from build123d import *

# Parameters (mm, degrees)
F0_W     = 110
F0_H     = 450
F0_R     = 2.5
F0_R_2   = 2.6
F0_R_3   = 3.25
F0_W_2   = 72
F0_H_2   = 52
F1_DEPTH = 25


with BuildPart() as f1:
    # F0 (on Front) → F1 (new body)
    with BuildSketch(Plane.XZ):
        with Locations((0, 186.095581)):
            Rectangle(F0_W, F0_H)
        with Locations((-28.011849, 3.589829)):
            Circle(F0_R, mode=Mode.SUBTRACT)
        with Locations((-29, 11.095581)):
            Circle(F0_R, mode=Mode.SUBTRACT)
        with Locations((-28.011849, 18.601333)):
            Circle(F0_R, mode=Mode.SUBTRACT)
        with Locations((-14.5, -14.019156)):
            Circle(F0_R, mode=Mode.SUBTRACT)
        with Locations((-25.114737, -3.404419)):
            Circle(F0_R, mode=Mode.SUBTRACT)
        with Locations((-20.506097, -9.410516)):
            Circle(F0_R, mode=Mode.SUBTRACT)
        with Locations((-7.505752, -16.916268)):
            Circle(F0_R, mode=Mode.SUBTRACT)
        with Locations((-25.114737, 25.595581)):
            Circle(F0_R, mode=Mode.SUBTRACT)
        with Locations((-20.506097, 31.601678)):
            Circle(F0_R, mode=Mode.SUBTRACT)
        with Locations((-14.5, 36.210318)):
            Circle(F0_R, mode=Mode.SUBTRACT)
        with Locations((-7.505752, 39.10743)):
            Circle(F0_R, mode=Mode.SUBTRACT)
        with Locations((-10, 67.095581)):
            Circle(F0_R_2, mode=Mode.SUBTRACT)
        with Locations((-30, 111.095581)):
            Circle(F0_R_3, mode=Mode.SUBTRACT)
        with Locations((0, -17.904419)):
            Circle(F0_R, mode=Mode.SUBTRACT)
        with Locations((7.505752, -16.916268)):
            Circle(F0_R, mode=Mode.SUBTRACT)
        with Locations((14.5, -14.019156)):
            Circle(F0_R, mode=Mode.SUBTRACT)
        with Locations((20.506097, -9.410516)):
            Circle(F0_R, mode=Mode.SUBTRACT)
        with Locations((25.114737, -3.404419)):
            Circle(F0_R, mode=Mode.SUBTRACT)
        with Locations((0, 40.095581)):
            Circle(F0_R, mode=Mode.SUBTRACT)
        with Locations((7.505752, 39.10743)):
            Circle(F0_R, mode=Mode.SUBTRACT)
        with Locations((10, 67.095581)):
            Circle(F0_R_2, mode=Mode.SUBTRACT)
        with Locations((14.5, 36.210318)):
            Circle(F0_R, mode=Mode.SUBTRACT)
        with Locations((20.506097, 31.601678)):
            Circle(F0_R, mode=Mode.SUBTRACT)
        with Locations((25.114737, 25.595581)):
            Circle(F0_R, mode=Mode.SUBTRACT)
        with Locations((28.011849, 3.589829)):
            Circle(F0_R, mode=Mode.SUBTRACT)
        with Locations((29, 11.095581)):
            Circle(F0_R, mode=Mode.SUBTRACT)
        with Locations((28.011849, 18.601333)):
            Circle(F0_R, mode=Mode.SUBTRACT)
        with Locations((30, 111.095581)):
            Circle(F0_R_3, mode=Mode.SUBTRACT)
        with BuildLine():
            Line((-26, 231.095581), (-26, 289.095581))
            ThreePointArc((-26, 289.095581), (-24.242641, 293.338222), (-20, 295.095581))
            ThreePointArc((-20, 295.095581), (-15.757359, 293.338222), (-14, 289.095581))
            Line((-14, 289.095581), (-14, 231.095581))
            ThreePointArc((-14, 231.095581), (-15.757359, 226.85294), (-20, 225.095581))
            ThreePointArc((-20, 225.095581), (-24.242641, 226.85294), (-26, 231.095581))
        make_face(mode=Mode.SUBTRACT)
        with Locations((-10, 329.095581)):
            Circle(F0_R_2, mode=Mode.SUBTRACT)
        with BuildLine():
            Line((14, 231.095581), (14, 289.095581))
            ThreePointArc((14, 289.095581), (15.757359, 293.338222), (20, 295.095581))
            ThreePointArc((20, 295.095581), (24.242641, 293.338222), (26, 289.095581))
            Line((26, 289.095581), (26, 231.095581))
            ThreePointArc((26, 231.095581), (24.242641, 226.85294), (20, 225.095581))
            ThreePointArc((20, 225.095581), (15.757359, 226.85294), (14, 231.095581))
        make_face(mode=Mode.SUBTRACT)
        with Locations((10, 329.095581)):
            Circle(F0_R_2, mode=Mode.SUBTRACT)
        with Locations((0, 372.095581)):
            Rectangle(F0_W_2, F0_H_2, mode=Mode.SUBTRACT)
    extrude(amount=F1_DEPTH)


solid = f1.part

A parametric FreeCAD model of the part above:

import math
import FreeCAD as App
import Part
import Sketcher


def add_polygon(sketch, points):
    """Adds a closed chain of lines whose ends are joined by coincident constraints."""
    first, n = sketch.GeometryCount, len(points)
    for a, b in zip(points, points[1:] + points[:1]):
        sketch.addGeometry(Part.LineSegment(App.Vector(*a, 0), App.Vector(*b, 0)), False)
    for i in range(n):
        sketch.addConstraint(Sketcher.Constraint("Coincident", first + i, 2, first + (i + 1) % n, 1))

doc = App.newDocument("Part")
body = doc.addObject("PartDesign::Body", "Body")

sketch1 = body.newObject("Sketcher::SketchObject", "Sketch")
sketch1.AttachmentSupport = (doc.getObject("XZ_Plane"), [""])
sketch1.MapMode = "FlatFace"
add_polygon(sketch1, [(-55, 411.1), (-55, -38.9), (55, -38.9), (55, 411.1)])
sketch1.addGeometry(Part.Circle(App.Vector(-28, 3.6, 0), App.Vector(0, 0, 1), 2.5), False)
sketch1.addGeometry(Part.Circle(App.Vector(-29, 11.1, 0), App.Vector(0, 0, 1), 2.5), False)
sketch1.addGeometry(Part.Circle(App.Vector(-28, 18.6, 0), App.Vector(0, 0, 1), 2.5), False)
sketch1.addGeometry(Part.Circle(App.Vector(-25.1, -3.4, 0), App.Vector(0, 0, 1), 2.5), False)
sketch1.addGeometry(Part.Circle(App.Vector(-20.5, -9.4, 0), App.Vector(0, 0, 1), 2.5), False)
sketch1.addGeometry(Part.Circle(App.Vector(-25.1, 25.6, 0), App.Vector(0, 0, 1), 2.5), False)
sketch1.addGeometry(Part.Circle(App.Vector(-20.5, 31.6, 0), App.Vector(0, 0, 1), 2.5), False)
sketch1.addGeometry(Part.Circle(App.Vector(-14.5, -14, 0), App.Vector(0, 0, 1), 2.5), False)
sketch1.addGeometry(Part.Circle(App.Vector(-7.5, -16.9, 0), App.Vector(0, 0, 1), 2.5), False)
sketch1.addGeometry(Part.Circle(App.Vector(-14.5, 36.2, 0), App.Vector(0, 0, 1), 2.5), False)
sketch1.addGeometry(Part.Circle(App.Vector(-10, 67.1, 0), App.Vector(0, 0, 1), 2.6), False)
sketch1.addGeometry(Part.Circle(App.Vector(-7.5, 39.1, 0), App.Vector(0, 0, 1), 2.5), False)
sketch1.addGeometry(Part.Circle(App.Vector(-30, 111.1, 0), App.Vector(0, 0, 1), 3.2), False)
sketch1.addGeometry(Part.Circle(App.Vector(0, -17.9, 0), App.Vector(0, 0, 1), 2.5), False)
sketch1.addGeometry(Part.Circle(App.Vector(7.5, -16.9, 0), App.Vector(0, 0, 1), 2.5), False)
sketch1.addGeometry(Part.Circle(App.Vector(14.5, -14, 0), App.Vector(0, 0, 1), 2.5), False)
sketch1.addGeometry(Part.Circle(App.Vector(0, 40.1, 0), App.Vector(0, 0, 1), 2.5), False)
sketch1.addGeometry(Part.Circle(App.Vector(7.5, 39.1, 0), App.Vector(0, 0, 1), 2.5), False)
sketch1.addGeometry(Part.Circle(App.Vector(14.5, 36.2, 0), App.Vector(0, 0, 1), 2.5), False)
sketch1.addGeometry(Part.Circle(App.Vector(10, 67.1, 0), App.Vector(0, 0, 1), 2.6), False)
sketch1.addGeometry(Part.Circle(App.Vector(20.5, -9.4, 0), App.Vector(0, 0, 1), 2.5), False)
sketch1.addGeometry(Part.Circle(App.Vector(25.1, -3.4, 0), App.Vector(0, 0, 1), 2.5), False)
sketch1.addGeometry(Part.Circle(App.Vector(20.5, 31.6, 0), App.Vector(0, 0, 1), 2.5), False)
sketch1.addGeometry(Part.Circle(App.Vector(25.1, 25.6, 0), App.Vector(0, 0, 1), 2.5), False)
sketch1.addGeometry(Part.Circle(App.Vector(28, 3.6, 0), App.Vector(0, 0, 1), 2.5), False)
sketch1.addGeometry(Part.Circle(App.Vector(29, 11.1, 0), App.Vector(0, 0, 1), 2.5), False)
sketch1.addGeometry(Part.Circle(App.Vector(28, 18.6, 0), App.Vector(0, 0, 1), 2.5), False)
sketch1.addGeometry(Part.Circle(App.Vector(30, 111.1, 0), App.Vector(0, 0, 1), 3.2), False)
sketch1.addGeometry(Part.ArcOfCircle(Part.Circle(App.Vector(-20, 231.1, 0), App.Vector(0, 0, 1), 6), math.radians(180), math.radians(270)), False)
sketch1.addGeometry(Part.LineSegment(App.Vector(-26, 231.1, 0), App.Vector(-26, 289.1, 0)), False)
sketch1.addGeometry(Part.ArcOfCircle(Part.Circle(App.Vector(-20, 289.1, 0), App.Vector(0, 0, 1), 6), math.radians(90), math.radians(180)), False)
sketch1.addGeometry(Part.ArcOfCircle(Part.Circle(App.Vector(-20, 289.1, 0), App.Vector(0, 0, 1), 6), math.radians(0), math.radians(90)), False)
sketch1.addGeometry(Part.LineSegment(App.Vector(-14, 289.1, 0), App.Vector(-14, 231.1, 0)), False)
sketch1.addGeometry(Part.ArcOfCircle(Part.Circle(App.Vector(-20, 231.1, 0), App.Vector(0, 0, 1), 6), math.radians(-90), math.radians(0)), False)
sketch1.addGeometry(Part.Circle(App.Vector(-10, 329.1, 0), App.Vector(0, 0, 1), 2.6), False)
sketch1.addGeometry(Part.ArcOfCircle(Part.Circle(App.Vector(20, 231.1, 0), App.Vector(0, 0, 1), 6), math.radians(180), math.radians(270)), False)
sketch1.addGeometry(Part.LineSegment(App.Vector(14, 231.1, 0), App.Vector(14, 289.1, 0)), False)
sketch1.addGeometry(Part.ArcOfCircle(Part.Circle(App.Vector(20, 289.1, 0), App.Vector(0, 0, 1), 6), math.radians(90), math.radians(180)), False)
sketch1.addGeometry(Part.ArcOfCircle(Part.Circle(App.Vector(20, 289.1, 0), App.Vector(0, 0, 1), 6), math.radians(0), math.radians(90)), False)
sketch1.addGeometry(Part.LineSegment(App.Vector(26, 289.1, 0), App.Vector(26, 231.1, 0)), False)
sketch1.addGeometry(Part.ArcOfCircle(Part.Circle(App.Vector(20, 231.1, 0), App.Vector(0, 0, 1), 6), math.radians(-90), math.radians(0)), False)
sketch1.addGeometry(Part.Circle(App.Vector(10, 329.1, 0), App.Vector(0, 0, 1), 2.6), False)
add_polygon(sketch1, [(36, 346.1), (-36, 346.1), (-36, 398.1), (36, 398.1)])
sketch1.addConstraint([
    Sketcher.Constraint("Tangent", 32, 1, 33, 1),
    Sketcher.Constraint("Tangent", 33, 2, 34, 2),
    Sketcher.Constraint("Tangent", 34, 1, 35, 2),
    Sketcher.Constraint("Tangent", 35, 1, 36, 1),
    Sketcher.Constraint("Tangent", 36, 2, 37, 2),
    Sketcher.Constraint("Tangent", 37, 1, 32, 2),
    Sketcher.Constraint("Tangent", 39, 1, 40, 1),
    Sketcher.Constraint("Tangent", 40, 2, 41, 2),
    Sketcher.Constraint("Tangent", 41, 1, 42, 2),
    Sketcher.Constraint("Tangent", 42, 1, 43, 1),
    Sketcher.Constraint("Tangent", 43, 2, 44, 2),
    Sketcher.Constraint("Tangent", 44, 1, 39, 2),
    Sketcher.Constraint("Vertical", 0),
    Sketcher.Constraint("Horizontal", 1),
    Sketcher.Constraint("Vertical", 2),
    Sketcher.Constraint("Horizontal", 3),
    Sketcher.Constraint("Vertical", 33),
    Sketcher.Constraint("Vertical", 36),
    Sketcher.Constraint("Vertical", 40),
    Sketcher.Constraint("Vertical", 43),
    Sketcher.Constraint("Horizontal", 46),
    Sketcher.Constraint("Vertical", 47),
    Sketcher.Constraint("Horizontal", 48),
    Sketcher.Constraint("Vertical", 49),
    Sketcher.Constraint("Equal", 4, 5),
    Sketcher.Constraint("Equal", 5, 6),
    Sketcher.Constraint("Equal", 6, 7),
    Sketcher.Constraint("Equal", 7, 8),
    Sketcher.Constraint("Equal", 8, 9),
    Sketcher.Constraint("Equal", 9, 10),
    Sketcher.Constraint("Equal", 10, 11),
    Sketcher.Constraint("Equal", 11, 12),
    Sketcher.Constraint("Equal", 12, 13),
    Sketcher.Constraint("Equal", 13, 15),
    Sketcher.Constraint("Equal", 15, 17),
    Sketcher.Constraint("Equal", 17, 18),
    Sketcher.Constraint("Equal", 18, 19),
    Sketcher.Constraint("Equal", 19, 20),
    Sketcher.Constraint("Equal", 20, 21),
    Sketcher.Constraint("Equal", 21, 22),
    Sketcher.Constraint("Equal", 14, 23),
    Sketcher.Constraint("Equal", 22, 24),
    Sketcher.Constraint("Equal", 24, 25),
    Sketcher.Constraint("Equal", 25, 26),
    Sketcher.Constraint("Equal", 26, 27),
    Sketcher.Constraint("Equal", 27, 28),
    Sketcher.Constraint("Equal", 28, 29),
    Sketcher.Constraint("Equal", 29, 30),
    Sketcher.Constraint("Equal", 16, 31),
    Sketcher.Constraint("Equal", 32, 34),
    Sketcher.Constraint("Equal", 34, 35),
    Sketcher.Constraint("Equal", 23, 38),
    Sketcher.Constraint("Equal", 37, 39),
    Sketcher.Constraint("Equal", 39, 41),
    Sketcher.Constraint("Equal", 41, 42),
    Sketcher.Constraint("Equal", 38, 45),
    Sketcher.Constraint("Symmetric", 12, 3, 18, 3, -2),
    Sketcher.Constraint("Symmetric", 11, 3, 19, 3, -2),
    Sketcher.Constraint("Symmetric", 15, 3, 21, 3, -2),
    Sketcher.Constraint("Symmetric", 13, 3, 22, 3, -2),
    Sketcher.Constraint("Symmetric", 14, 3, 23, 3, -2),
    Sketcher.Constraint("Symmetric", 8, 3, 24, 3, -2),
    Sketcher.Constraint("Symmetric", 7, 3, 25, 3, -2),
    Sketcher.Constraint("Symmetric", 10, 3, 26, 3, -2),
    Sketcher.Constraint("Symmetric", 9, 3, 27, 3, -2),
    Sketcher.Constraint("Symmetric", 4, 3, 28, 3, -2),
    Sketcher.Constraint("Symmetric", 5, 3, 29, 3, -2),
    Sketcher.Constraint("Symmetric", 6, 3, 30, 3, -2),
    Sketcher.Constraint("Symmetric", 16, 3, 31, 3, -2),
    Sketcher.Constraint("Symmetric", 32, 3, 39, 3, -2),
    Sketcher.Constraint("Symmetric", 38, 3, 45, 3, -2),
    Sketcher.Constraint("Symmetric", 34, 1, 41, 1, -2),
    Sketcher.Constraint("PointOnObject", 17, 3, -2),
    Sketcher.Constraint("PointOnObject", 20, 3, -2),
    Sketcher.Constraint("Vertical", 4, 3, 6, 3),
    Sketcher.Constraint("Vertical", 7, 3, 9, 3),
    Sketcher.Constraint("Vertical", 8, 3, 10, 3),
    Sketcher.Constraint("Vertical", 11, 3, 13, 3),
    Sketcher.Constraint("Vertical", 12, 3, 15, 3),
    Sketcher.Constraint("Vertical", 14, 3, 38, 3),
    Sketcher.Constraint("Vertical", 37, 3, 34, 1),
    Sketcher.Constraint("Vertical", 34, 1, 37, 1),
    Sketcher.Constraint("Vertical", 41, 1, 44, 1),
    Sketcher.Constraint("Diameter", 4, 5.0),
    Sketcher.Constraint("Radius", 32, 5.999999),
    Sketcher.Constraint("Diameter", 14, 5.2),
    Sketcher.Constraint("Diameter", 16, 6.5),
    Sketcher.Constraint("DistanceX", 1, 1, 1, 2, 110.0),
    Sketcher.Constraint("DistanceX", 46, 2, 46, 1, 72.0),
    Sketcher.Constraint("DistanceY", 0, 2, 0, 1, 450.0),
    Sketcher.Constraint("DistanceY", 33, 1, 33, 2, 58.0),
    Sketcher.Constraint("DistanceY", 47, 1, 47, 2, 52.0),
    Sketcher.Constraint("DistanceX", 5, 3, -1, 1, 29.0),
    Sketcher.Constraint("DistanceX", 14, 3, -1, 1, 10.0),
    Sketcher.Constraint("DistanceX", 16, 3, -1, 1, 30.0),
    Sketcher.Constraint("DistanceX", 32, 3, -1, 1, 20.000001),
    Sketcher.Constraint("DistanceX", 0, 2, -1, 1, 55.0),
    Sketcher.Constraint("DistanceX", 46, 2, -1, 1, 36.0),
    Sketcher.Constraint("DistanceY", 7, 3, 9, 3, 29.0),
    Sketcher.Constraint("DistanceY", 5, 3, 14, 3, 56.0),
    Sketcher.Constraint("DistanceY", 14, 3, 16, 3, 44.0),
    Sketcher.Constraint("DistanceX", 11, 3, 19, 3, 29.0),
    Sketcher.Constraint("DistanceY", 20, 3, 14, 3, 27.0),
    Sketcher.Constraint("DistanceY", 16, 3, 32, 3, 119.999999),
    Sketcher.Constraint("DistanceY", 35, 3, 38, 3, 39.999999),
    Sketcher.Constraint("DistanceY", 45, 3, 2, 2, 82.0),
    Sketcher.Constraint("DistanceY", 38, 3, 46, 2, 17.0),
    Sketcher.Constraint("DistanceY", 7, 3, 5, 3, 14.5),
    Sketcher.Constraint("DistanceY", 17, 3, 7, 3, 14.5),
    Sketcher.Constraint("DistanceX", 4, 3, -1, 1, 28.011849),
    Sketcher.Constraint("DistanceY", -1, 1, 4, 3, 3.589829),
    Sketcher.Constraint("DistanceY", -1, 1, 5, 3, 11.095581),
    Sketcher.Constraint("DistanceY", -1, 1, 15, 3, 39.10743),
    Sketcher.Constraint("DistanceX", 4, 3, 7, 3, 2.897112),
    Sketcher.Constraint("DistanceX", 7, 3, 8, 3, 4.60864),
    Sketcher.Constraint("DistanceY", 8, 3, 6, 3, 28.011849),
    Sketcher.Constraint("DistanceY", 4, 3, 10, 3, 28.011849),
    Sketcher.Constraint("DistanceY", 11, 3, 8, 3, 4.60864),
    Sketcher.Constraint("DistanceY", 12, 3, 11, 3, 2.897112),
    Sketcher.Constraint("DistanceY", 12, 3, 7, 3, 13.511849),
    Sketcher.Constraint("DistanceY", 10, 3, 13, 3, 4.60864),
    Sketcher.Constraint("DistanceX", 8, 3, 18, 3, 28.011849),
])
pad1 = body.newObject("PartDesign::Pad", "Pad")
pad1.Profile = sketch1
pad1.Length = 25

doc.recompute()
